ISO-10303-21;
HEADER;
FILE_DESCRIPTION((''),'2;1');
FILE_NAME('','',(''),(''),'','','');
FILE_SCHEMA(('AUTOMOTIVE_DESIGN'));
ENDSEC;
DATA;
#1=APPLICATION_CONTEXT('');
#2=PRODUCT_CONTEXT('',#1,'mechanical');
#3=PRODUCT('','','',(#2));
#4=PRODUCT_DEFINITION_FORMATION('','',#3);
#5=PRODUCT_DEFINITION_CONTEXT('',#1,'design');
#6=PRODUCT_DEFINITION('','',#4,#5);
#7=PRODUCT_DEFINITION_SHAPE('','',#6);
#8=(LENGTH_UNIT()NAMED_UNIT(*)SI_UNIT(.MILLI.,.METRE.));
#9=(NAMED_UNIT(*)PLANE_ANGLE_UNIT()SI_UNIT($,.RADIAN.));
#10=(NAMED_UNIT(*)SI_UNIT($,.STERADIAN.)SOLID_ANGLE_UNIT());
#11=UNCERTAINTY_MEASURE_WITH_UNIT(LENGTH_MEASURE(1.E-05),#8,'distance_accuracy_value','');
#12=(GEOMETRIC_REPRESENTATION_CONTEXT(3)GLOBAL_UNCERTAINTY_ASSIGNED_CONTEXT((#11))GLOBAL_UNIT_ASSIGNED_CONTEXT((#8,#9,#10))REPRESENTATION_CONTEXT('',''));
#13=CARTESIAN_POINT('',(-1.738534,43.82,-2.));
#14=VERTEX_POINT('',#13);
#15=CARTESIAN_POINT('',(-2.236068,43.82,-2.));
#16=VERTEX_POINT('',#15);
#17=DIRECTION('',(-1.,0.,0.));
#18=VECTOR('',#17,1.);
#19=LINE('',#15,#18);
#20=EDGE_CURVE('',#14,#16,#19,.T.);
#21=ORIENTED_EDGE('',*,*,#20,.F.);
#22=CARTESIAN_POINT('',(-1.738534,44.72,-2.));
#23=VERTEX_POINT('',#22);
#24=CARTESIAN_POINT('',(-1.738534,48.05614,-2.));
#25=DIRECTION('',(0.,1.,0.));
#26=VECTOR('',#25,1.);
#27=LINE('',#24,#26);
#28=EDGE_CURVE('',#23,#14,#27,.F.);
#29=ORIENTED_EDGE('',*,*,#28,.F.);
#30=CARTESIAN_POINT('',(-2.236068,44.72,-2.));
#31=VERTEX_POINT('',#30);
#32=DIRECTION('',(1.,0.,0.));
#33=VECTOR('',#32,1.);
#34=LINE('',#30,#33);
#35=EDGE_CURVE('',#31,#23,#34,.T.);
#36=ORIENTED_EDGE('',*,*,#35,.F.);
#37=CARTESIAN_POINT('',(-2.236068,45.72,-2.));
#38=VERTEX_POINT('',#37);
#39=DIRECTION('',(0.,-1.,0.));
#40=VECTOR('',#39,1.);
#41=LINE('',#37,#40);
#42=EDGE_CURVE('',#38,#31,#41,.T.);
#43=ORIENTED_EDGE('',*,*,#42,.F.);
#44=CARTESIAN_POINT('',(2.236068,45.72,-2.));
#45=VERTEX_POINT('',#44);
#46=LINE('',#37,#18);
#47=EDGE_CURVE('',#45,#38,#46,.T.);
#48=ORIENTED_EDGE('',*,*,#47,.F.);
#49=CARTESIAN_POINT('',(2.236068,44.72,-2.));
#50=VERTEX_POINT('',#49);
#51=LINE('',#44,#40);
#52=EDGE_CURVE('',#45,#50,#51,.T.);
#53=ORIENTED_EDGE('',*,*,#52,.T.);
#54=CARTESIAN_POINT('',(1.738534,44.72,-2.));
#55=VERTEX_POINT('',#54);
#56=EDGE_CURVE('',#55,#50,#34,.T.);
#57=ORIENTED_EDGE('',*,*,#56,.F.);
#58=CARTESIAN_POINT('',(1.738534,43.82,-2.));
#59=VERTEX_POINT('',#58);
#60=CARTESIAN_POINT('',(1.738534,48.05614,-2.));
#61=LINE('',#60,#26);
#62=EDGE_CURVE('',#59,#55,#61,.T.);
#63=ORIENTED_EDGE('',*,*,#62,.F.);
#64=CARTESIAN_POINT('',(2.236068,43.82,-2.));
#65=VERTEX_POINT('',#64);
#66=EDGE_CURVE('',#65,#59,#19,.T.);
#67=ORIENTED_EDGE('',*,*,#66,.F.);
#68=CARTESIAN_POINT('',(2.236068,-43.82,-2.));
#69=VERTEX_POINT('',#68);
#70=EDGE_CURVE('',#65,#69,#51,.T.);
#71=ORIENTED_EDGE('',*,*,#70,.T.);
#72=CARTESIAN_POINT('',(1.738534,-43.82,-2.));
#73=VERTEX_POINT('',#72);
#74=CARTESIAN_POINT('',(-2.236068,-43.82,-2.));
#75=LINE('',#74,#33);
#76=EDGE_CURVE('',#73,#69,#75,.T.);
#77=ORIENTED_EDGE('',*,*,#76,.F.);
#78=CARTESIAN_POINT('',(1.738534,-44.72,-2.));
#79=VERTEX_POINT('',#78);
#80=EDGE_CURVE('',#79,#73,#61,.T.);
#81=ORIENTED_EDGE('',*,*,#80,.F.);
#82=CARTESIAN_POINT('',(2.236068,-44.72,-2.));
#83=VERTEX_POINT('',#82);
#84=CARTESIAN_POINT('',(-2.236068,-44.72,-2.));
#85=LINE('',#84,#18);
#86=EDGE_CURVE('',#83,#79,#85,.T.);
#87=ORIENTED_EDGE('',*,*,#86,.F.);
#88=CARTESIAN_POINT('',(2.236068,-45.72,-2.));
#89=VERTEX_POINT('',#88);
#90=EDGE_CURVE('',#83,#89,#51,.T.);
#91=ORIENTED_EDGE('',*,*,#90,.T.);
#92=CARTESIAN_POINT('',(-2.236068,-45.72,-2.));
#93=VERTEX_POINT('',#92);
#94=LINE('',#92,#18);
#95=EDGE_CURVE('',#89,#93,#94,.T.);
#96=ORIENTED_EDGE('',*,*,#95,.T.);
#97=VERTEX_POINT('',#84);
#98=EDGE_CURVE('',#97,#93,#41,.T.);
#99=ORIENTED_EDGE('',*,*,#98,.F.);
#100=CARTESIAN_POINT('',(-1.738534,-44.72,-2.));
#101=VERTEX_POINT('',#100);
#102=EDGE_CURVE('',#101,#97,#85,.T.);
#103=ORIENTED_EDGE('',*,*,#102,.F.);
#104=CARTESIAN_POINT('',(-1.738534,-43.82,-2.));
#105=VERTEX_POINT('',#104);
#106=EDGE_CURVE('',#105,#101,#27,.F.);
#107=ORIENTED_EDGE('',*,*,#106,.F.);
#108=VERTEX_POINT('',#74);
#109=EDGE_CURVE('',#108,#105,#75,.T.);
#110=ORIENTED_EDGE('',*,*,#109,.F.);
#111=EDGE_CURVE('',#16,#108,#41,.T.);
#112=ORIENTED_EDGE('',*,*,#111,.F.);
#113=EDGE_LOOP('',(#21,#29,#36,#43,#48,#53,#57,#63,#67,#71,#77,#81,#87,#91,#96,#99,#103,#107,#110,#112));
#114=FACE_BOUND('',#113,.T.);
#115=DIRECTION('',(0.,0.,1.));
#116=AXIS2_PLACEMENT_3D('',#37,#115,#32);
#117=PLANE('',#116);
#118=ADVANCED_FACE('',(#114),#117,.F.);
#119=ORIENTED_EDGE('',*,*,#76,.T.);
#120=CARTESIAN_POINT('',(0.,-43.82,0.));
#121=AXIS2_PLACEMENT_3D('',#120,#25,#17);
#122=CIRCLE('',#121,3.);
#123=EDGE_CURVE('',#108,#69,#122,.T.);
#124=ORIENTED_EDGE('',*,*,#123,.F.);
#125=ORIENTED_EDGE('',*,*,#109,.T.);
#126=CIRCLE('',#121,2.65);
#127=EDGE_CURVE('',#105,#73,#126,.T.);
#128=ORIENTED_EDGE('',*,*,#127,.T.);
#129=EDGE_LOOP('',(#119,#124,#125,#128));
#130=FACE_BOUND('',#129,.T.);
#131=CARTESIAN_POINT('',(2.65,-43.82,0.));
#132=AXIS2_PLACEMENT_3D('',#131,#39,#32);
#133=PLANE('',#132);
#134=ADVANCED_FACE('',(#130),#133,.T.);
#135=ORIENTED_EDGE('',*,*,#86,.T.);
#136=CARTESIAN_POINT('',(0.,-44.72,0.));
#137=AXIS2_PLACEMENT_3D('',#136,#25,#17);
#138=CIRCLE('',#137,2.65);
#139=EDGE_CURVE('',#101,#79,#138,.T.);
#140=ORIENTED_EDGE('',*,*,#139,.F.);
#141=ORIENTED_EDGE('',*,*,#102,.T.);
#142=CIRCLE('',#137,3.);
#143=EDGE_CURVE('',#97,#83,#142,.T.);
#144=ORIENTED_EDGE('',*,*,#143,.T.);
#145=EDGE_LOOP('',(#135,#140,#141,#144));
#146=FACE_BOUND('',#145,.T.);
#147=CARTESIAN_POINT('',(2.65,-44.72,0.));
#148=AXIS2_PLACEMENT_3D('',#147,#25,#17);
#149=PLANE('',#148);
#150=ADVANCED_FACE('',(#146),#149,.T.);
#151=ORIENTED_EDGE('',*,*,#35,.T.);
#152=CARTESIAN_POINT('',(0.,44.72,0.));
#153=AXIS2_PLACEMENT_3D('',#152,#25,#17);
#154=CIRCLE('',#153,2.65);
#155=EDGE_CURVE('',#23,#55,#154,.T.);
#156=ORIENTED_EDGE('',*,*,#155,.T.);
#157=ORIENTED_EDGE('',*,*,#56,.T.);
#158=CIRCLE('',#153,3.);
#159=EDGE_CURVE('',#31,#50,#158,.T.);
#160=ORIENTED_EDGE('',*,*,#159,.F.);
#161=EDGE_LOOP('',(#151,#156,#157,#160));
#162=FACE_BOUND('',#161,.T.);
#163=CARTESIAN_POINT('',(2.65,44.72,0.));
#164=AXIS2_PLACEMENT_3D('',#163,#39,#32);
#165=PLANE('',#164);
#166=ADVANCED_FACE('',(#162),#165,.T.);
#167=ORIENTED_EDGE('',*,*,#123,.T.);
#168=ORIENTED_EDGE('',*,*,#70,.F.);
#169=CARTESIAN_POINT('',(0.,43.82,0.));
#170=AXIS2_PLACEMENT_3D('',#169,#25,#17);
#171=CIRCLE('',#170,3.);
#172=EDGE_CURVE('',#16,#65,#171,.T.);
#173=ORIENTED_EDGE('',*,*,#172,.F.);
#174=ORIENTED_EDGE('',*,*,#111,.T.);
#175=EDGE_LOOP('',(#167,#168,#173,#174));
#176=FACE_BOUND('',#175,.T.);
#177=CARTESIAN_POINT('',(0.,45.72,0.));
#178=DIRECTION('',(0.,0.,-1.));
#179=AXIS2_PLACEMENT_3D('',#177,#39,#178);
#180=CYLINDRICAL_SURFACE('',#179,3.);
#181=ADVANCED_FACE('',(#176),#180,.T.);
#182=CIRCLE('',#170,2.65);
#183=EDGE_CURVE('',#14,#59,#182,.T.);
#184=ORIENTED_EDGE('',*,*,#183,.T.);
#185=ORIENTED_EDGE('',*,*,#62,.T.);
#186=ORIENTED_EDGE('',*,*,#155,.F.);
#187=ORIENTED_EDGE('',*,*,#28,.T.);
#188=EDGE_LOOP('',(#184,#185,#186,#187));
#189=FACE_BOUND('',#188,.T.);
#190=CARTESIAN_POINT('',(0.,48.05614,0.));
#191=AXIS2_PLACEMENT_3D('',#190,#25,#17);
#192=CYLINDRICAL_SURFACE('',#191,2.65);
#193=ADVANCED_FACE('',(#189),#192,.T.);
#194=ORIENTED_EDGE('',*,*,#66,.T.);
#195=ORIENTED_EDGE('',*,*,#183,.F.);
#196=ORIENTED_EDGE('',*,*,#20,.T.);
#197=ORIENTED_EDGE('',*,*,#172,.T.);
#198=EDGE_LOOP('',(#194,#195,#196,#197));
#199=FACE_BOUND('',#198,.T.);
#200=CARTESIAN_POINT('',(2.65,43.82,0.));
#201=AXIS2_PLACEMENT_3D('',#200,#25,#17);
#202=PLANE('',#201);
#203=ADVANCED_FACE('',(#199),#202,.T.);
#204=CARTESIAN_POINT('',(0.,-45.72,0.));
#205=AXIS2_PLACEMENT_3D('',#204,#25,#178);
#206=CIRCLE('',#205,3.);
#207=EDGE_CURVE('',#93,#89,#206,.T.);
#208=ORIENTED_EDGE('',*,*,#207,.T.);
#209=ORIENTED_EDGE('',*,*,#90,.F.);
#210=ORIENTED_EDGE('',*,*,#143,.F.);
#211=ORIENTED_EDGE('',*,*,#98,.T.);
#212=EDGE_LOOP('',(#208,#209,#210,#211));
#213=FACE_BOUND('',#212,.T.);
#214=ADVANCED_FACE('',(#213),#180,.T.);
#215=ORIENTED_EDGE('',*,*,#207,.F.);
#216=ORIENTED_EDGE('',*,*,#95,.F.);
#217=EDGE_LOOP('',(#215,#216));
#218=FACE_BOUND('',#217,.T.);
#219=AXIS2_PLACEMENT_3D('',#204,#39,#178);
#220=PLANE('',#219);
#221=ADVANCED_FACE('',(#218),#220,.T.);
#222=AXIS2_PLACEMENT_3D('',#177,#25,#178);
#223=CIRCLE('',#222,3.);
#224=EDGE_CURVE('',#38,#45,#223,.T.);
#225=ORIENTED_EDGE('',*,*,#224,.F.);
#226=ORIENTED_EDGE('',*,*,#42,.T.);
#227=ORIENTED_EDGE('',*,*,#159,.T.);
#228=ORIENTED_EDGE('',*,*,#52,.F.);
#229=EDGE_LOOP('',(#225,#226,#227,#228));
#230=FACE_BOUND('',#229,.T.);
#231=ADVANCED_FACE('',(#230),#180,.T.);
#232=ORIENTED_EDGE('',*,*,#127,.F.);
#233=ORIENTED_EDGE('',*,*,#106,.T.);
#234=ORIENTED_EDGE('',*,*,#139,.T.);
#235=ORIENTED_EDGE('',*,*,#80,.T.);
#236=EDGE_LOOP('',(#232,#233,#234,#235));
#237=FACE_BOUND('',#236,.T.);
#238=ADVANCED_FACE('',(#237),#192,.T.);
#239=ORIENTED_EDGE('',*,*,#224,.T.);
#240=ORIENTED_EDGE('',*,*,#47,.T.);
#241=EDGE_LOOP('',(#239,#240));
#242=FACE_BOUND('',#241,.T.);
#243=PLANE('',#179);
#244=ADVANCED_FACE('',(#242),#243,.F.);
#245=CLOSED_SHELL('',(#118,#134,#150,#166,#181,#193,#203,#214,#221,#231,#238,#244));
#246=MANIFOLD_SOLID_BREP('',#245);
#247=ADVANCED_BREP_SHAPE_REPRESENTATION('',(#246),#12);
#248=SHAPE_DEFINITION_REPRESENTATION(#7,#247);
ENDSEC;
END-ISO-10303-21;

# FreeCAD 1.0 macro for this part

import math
import FreeCAD as App
import Part
import Sketcher
from FreeCAD import Vector
Q = App.Units.Quantity

doc = App.newDocument("Part")
body = doc.addObject("PartDesign::Body", "Body")

# Sketch on XZ plane
sketch1 = body.newObject("Sketcher::SketchObject", "Sketch")
sketch1.AttachmentSupport = (doc.getObject("XZ_Plane"), [""])
sketch1.MapMode = "FlatFace"
sketch1.addGeometry(Part.LineSegment(Vector(2.236068, -2, 0), Vector(-2.236068, -2, 0)), False)
sketch1.addGeometry(Part.ArcOfCircle(Part.Circle(Vector(0, 0, 0), Vector(0, 0, 1), 3), math.radians(-41.810315), math.radians(221.810315)), False)
sketch1.addConstraint(Sketcher.Constraint("Coincident", 0, 1, 1, 1))
sketch1.addConstraint(Sketcher.Constraint("Coincident", 1, 2, 0, 2))
sketch1.addConstraint(Sketcher.Constraint("Horizontal", 0))
sketch1.addConstraint(Sketcher.Constraint("Coincident", 1, 3, -1, 1))
sketch1.addConstraint(Sketcher.Constraint("Radius", 1, Q("3 mm")))
sketch1.addConstraint(Sketcher.Constraint("DistanceY", 0, 1, -1, 1, Q("2 mm")))
pad1 = body.newObject("PartDesign::Pad", "Pad")
pad1.Profile = sketch1
pad1.Length = 91.44
pad1.Midplane = True

# Sketch on XY plane
sketch2 = body.newObject("Sketcher::SketchObject", "Sketch001")
sketch2.AttachmentSupport = (doc.getObject("XY_Plane"), [""])
sketch2.MapMode = "FlatFace"
sketch2.addGeometry(Part.LineSegment(Vector(2.65, 44.72, 0), Vector(2.65, 43.82, 0)), False)
sketch2.addGeometry(Part.LineSegment(Vector(2.65, 43.82, 0), Vector(3, 43.82, 0)), False)
sketch2.addGeometry(Part.LineSegment(Vector(3, 43.82, 0), Vector(3, 44.72, 0)), False)
sketch2.addGeometry(Part.LineSegment(Vector(3, 44.72, 0), Vector(2.65, 44.72, 0)), False)
sketch2.addGeometry(Part.LineSegment(Vector(2.65, -43.82, 0), Vector(2.65, -44.72, 0)), False)
sketch2.addGeometry(Part.LineSegment(Vector(2.65, -44.72, 0), Vector(3, -44.72, 0)), False)
sketch2.addGeometry(Part.LineSegment(Vector(3, -44.72, 0), Vector(3, -43.82, 0)), False)
sketch2.addGeometry(Part.LineSegment(Vector(3, -43.82, 0), Vector(2.65, -43.82, 0)), False)
sketch2.addConstraint(Sketcher.Constraint("Coincident", 0, 2, 1, 1))
sketch2.addConstraint(Sketcher.Constraint("Coincident", 1, 2, 2, 1))
sketch2.addConstraint(Sketcher.Constraint("Coincident", 2, 2, 3, 1))
sketch2.addConstraint(Sketcher.Constraint("Coincident", 3, 2, 0, 1))
sketch2.addConstraint(Sketcher.Constraint("Coincident", 4, 2, 5, 1))
sketch2.addConstraint(Sketcher.Constraint("Coincident", 5, 2, 6, 1))
sketch2.addConstraint(Sketcher.Constraint("Coincident", 6, 2, 7, 1))
sketch2.addConstraint(Sketcher.Constraint("Coincident", 7, 2, 4, 1))
sketch2.addConstraint(Sketcher.Constraint("Vertical", 0))
sketch2.addConstraint(Sketcher.Constraint("Horizontal", 1))
sketch2.addConstraint(Sketcher.Constraint("Vertical", 2))
sketch2.addConstraint(Sketcher.Constraint("Horizontal", 3))
sketch2.addConstraint(Sketcher.Constraint("Vertical", 4))
sketch2.addConstraint(Sketcher.Constraint("Horizontal", 5))
sketch2.addConstraint(Sketcher.Constraint("Vertical", 6))
sketch2.addConstraint(Sketcher.Constraint("Horizontal", 7))
sketch2.addConstraint(Sketcher.Constraint("Symmetric", 3, 2, 4, 2, -1))
sketch2.addConstraint(Sketcher.Constraint("Symmetric", 1, 2, 6, 2, -1))
sketch2.addConstraint(Sketcher.Constraint("DistanceY", 0, 2, 0, 1, Q("0.9 mm")))
sketch2.addConstraint(Sketcher.Constraint("DistanceX", -1, 1, 1, 2, Q("3 mm")))
sketch2.addConstraint(Sketcher.Constraint("DistanceX", 1, 1, 1, 2, Q("0.35 mm")))
sketch2.addConstraint(Sketcher.Constraint("DistanceY", -1, 1, 0, 2, Q("43.82 mm")))
groove = body.newObject("PartDesign::Groove", "Groove")
groove.Profile = sketch2
groove.ReferenceAxis = (sketch2, ["V_Axis"])
groove.Angle = 360

doc.recompute()
